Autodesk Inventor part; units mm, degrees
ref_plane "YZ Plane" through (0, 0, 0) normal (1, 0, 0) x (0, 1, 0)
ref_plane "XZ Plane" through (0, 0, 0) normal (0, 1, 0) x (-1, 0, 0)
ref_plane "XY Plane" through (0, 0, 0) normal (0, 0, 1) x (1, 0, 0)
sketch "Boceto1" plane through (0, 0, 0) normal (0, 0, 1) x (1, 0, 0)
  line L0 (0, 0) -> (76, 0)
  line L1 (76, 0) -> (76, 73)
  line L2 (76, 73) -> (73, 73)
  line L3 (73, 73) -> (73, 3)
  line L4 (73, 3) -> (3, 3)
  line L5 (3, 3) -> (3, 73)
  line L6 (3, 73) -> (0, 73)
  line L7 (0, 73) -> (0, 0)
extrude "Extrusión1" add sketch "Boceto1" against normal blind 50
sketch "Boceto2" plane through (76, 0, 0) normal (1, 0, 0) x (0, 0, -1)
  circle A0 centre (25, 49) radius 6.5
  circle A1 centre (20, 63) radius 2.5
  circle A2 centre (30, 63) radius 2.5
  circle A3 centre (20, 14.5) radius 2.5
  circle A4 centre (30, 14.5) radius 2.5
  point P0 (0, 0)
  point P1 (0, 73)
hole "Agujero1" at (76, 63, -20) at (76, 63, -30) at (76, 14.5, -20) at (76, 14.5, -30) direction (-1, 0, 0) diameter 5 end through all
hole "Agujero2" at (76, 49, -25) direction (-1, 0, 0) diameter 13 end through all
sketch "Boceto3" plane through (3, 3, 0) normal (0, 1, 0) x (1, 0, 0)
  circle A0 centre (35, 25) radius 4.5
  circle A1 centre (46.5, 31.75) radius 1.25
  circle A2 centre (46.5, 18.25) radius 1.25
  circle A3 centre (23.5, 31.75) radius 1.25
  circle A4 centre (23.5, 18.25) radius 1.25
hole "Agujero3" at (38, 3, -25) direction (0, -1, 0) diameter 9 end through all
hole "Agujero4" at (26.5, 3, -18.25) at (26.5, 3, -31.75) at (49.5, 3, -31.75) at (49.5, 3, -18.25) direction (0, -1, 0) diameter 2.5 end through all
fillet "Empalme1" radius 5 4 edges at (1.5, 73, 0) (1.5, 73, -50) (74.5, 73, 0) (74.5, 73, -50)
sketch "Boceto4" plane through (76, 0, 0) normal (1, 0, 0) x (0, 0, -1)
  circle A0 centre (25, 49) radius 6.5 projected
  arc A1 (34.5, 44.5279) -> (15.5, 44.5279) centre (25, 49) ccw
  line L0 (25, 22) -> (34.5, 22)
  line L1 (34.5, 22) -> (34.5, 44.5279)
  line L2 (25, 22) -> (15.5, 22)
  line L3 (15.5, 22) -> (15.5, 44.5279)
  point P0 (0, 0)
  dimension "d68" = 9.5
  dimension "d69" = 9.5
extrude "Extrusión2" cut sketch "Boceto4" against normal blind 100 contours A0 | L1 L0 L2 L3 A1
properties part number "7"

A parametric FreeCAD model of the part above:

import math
import FreeCAD as App
import Part
import Sketcher


def edges_at(feature, points):
    """Names of the edges that pass closest to the given points."""
    edges = feature.Shape.Edges
    near = lambda p: min(range(len(edges)), key=lambda i: edges[i].distToShape(Part.Vertex(*p))[0])
    return sorted({f"Edge{near(p) + 1}" for p in points})

doc = App.newDocument("Part")
body = doc.addObject("PartDesign::Body", "Body")

sketch1 = doc.addObject("Sketcher::SketchObject", "Sketch")
body.addObject(sketch1)
sketch1.AttachmentSupport = (doc.XY_Plane, [""])
sketch1.MapMode = "FlatFace"
sketch1.addGeometry([
    Part.LineSegment(App.Vector(0, 73, 0), App.Vector(0, 0, 0)),
    Part.LineSegment(App.Vector(0, 0, 0), App.Vector(76, 0, 0)),
    Part.LineSegment(App.Vector(76, 0, 0), App.Vector(76, 73, 0)),
    Part.LineSegment(App.Vector(76, 73, 0), App.Vector(73, 73, 0)),
    Part.LineSegment(App.Vector(73, 73, 0), App.Vector(73, 3, 0)),
    Part.LineSegment(App.Vector(73, 3, 0), App.Vector(3, 3, 0)),
    Part.LineSegment(App.Vector(3, 3, 0), App.Vector(3, 73, 0)),
    Part.LineSegment(App.Vector(3, 73, 0), App.Vector(0, 73, 0)),
], False)
sketch1.addConstraint([
    Sketcher.Constraint("Coincident", 0, 2, 1, 1),
    Sketcher.Constraint("Coincident", 1, 2, 2, 1),
    Sketcher.Constraint("Coincident", 2, 2, 3, 1),
    Sketcher.Constraint("Coincident", 3, 2, 4, 1),
    Sketcher.Constraint("Coincident", 4, 2, 5, 1),
    Sketcher.Constraint("Coincident", 5, 2, 6, 1),
    Sketcher.Constraint("Coincident", 6, 2, 7, 1),
    Sketcher.Constraint("Coincident", 7, 2, 0, 1),
    Sketcher.Constraint("Vertical", 0),
    Sketcher.Constraint("Horizontal", 1),
    Sketcher.Constraint("Vertical", 2),
    Sketcher.Constraint("Horizontal", 3),
    Sketcher.Constraint("Vertical", 4),
    Sketcher.Constraint("Horizontal", 5),
    Sketcher.Constraint("Vertical", 6),
    Sketcher.Constraint("Horizontal", 7),
    Sketcher.Constraint("Coincident", 0, 2, -1, 1),
    Sketcher.Constraint("Horizontal", 3, 2, 6, 2),
    Sketcher.Constraint("Equal", 3, 7),
    Sketcher.Constraint("Equal", 5, 4),
    Sketcher.Constraint("DistanceX", 1, 1, 1, 2, 76.0),
    Sketcher.Constraint("DistanceX", 3, 2, 3, 1, 3.0),
    Sketcher.Constraint("DistanceY", 0, 2, 0, 1, 73.0),
])
pad1 = doc.addObject("PartDesign::Pad", "Pad")
body.addObject(pad1)
pad1.Profile = sketch1
pad1.Length = 50
pad1.Reversed = True

sketch2 = doc.addObject("Sketcher::SketchObject", "Sketch001")
body.addObject(sketch2)
sketch2.AttachmentSupport = (doc.YZ_Plane, [""])
sketch2.MapMode = "FlatFace"
sketch2.AttachmentOffset = App.Placement(App.Vector(0, 0, 76), App.Rotation())
sketch2.addGeometry([
    Part.Circle(App.Vector(63, -20, 0), App.Vector(0, 0, 1), 2.5),
    Part.Circle(App.Vector(63, -30, 0), App.Vector(0, 0, 1), 2.5),
    Part.Circle(App.Vector(14.5, -20, 0), App.Vector(0, 0, 1), 2.5),
    Part.Circle(App.Vector(14.5, -30, 0), App.Vector(0, 0, 1), 2.5),
], False)
sketch2.addConstraint([
    Sketcher.Constraint("Equal", 0, 1),
    Sketcher.Constraint("Equal", 1, 2),
    Sketcher.Constraint("Equal", 2, 3),
    Sketcher.Constraint("Horizontal", 0, 3, 2, 3),
    Sketcher.Constraint("Horizontal", 1, 3, 3, 3),
    Sketcher.Constraint("Vertical", 0, 3, 1, 3),
    Sketcher.Constraint("Vertical", 2, 3, 3, 3),
    Sketcher.Constraint("Diameter", 0, 5.0),
    Sketcher.Constraint("DistanceX", -1, 1, 0, 3, 63.0),
    Sketcher.Constraint("DistanceY", 0, 3, -1, 1, 20.0),
    Sketcher.Constraint("DistanceY", 1, 3, -1, 1, 30.0),
    Sketcher.Constraint("DistanceX", -1, 1, 2, 3, 14.5),
])
doc.recompute()
hole = doc.addObject("PartDesign::Hole", "Hole")
body.addObject(hole)
hole.Profile = sketch2
hole.ThreadType = "None"
hole.Diameter = 5
hole.DepthType = "ThroughAll"

sketch3 = doc.addObject("Sketcher::SketchObject", "Sketch002")
body.addObject(sketch3)
sketch3.AttachmentSupport = (doc.YZ_Plane, [""])
sketch3.MapMode = "FlatFace"
sketch3.AttachmentOffset = App.Placement(App.Vector(0, 0, 76), App.Rotation())
sketch3.addGeometry(Part.Circle(App.Vector(49, -25, 0), App.Vector(0, 0, 1), 6), False)
sketch3.addConstraint([
    Sketcher.Constraint("Diameter", 0, 13.0),
    Sketcher.Constraint("DistanceX", -1, 1, 0, 3, 49.0),
    Sketcher.Constraint("DistanceY", 0, 3, -1, 1, 25.0),
])
doc.recompute()
hole2 = doc.addObject("PartDesign::Hole", "Hole001")
body.addObject(hole2)
hole2.Profile = sketch3
hole2.ThreadType = "None"
hole2.Diameter = 13
hole2.DepthType = "ThroughAll"

sketch4 = doc.addObject("Sketcher::SketchObject", "Sketch003")
body.addObject(sketch4)
sketch4.AttachmentSupport = (doc.XZ_Plane, [""])
sketch4.MapMode = "FlatFace"
sketch4.AttachmentOffset = App.Placement(App.Vector(0, 0, -3), App.Rotation())
sketch4.addGeometry(Part.Circle(App.Vector(38, -25, 0), App.Vector(0, 0, 1), 4.5), False)
sketch4.addConstraint([
    Sketcher.Constraint("Diameter", 0, 9.0),
    Sketcher.Constraint("DistanceX", -1, 1, 0, 3, 38.0),
    Sketcher.Constraint("DistanceY", 0, 3, -1, 1, 25.0),
])
doc.recompute()
hole3 = doc.addObject("PartDesign::Hole", "Hole002")
body.addObject(hole3)
hole3.Profile = sketch4
hole3.ThreadType = "None"
hole3.Diameter = 9
hole3.DepthType = "ThroughAll"
hole3.Reversed = True

sketch5 = doc.addObject("Sketcher::SketchObject", "Sketch004")
body.addObject(sketch5)
sketch5.AttachmentSupport = (doc.XZ_Plane, [""])
sketch5.MapMode = "FlatFace"
sketch5.AttachmentOffset = App.Placement(App.Vector(0, 0, -3), App.Rotation())
sketch5.addGeometry([
    Part.Circle(App.Vector(26.5, -18.2, 0), App.Vector(0, 0, 1), 1.2),
    Part.Circle(App.Vector(26.5, -31.8, 0), App.Vector(0, 0, 1), 1.2),
    Part.Circle(App.Vector(49.5, -31.8, 0), App.Vector(0, 0, 1), 1.2),
    Part.Circle(App.Vector(49.5, -18.2, 0), App.Vector(0, 0, 1), 1.2),
], False)
sketch5.addConstraint([
    Sketcher.Constraint("Equal", 0, 1),
    Sketcher.Constraint("Equal", 1, 2),
    Sketcher.Constraint("Equal", 2, 3),
    Sketcher.Constraint("Horizontal", 1, 3, 2, 3),
    Sketcher.Constraint("Horizontal", 0, 3, 3, 3),
    Sketcher.Constraint("Vertical", 0, 3, 1, 3),
    Sketcher.Constraint("Vertical", 2, 3, 3, 3),
    Sketcher.Constraint("Diameter", 0, 2.5),
    Sketcher.Constraint("DistanceX", 1, 3, 2, 3, 23.0),
    Sketcher.Constraint("DistanceX", -1, 1, 0, 3, 26.5),
    Sketcher.Constraint("DistanceY", 1, 3, 0, 3, 13.5),
    Sketcher.Constraint("DistanceY", 0, 3, -1, 1, 18.25),
])
doc.recompute()
hole4 = doc.addObject("PartDesign::Hole", "Hole003")
body.addObject(hole4)
hole4.Profile = sketch5
hole4.ThreadType = "None"
hole4.Diameter = 2.5
hole4.DepthType = "ThroughAll"
hole4.Reversed = True
doc.recompute()

fillet = doc.addObject("PartDesign::Fillet", "Fillet")
body.addObject(fillet)
fillet.Base = (hole4, edges_at(hole4, [
    (1.5, 73, 0),
    (1.5, 73, -50),
    (74.5, 73, 0),
    (74.5, 73, -50),
]))
fillet.Radius = 5

sketch6 = doc.addObject("Sketcher::SketchObject", "Sketch005")
body.addObject(sketch6)
sketch6.AttachmentSupport = (doc.YZ_Plane, [""])
sketch6.MapMode = "FlatFace"
sketch6.AttachmentOffset = App.Placement(App.Vector(0, 0, 76), App.Rotation())
sketch6.addGeometry([
    Part.LineSegment(App.Vector(22, -34, 0), App.Vector(45, -34, 0)),
    Part.ArcOfCircle(Part.Circle(App.Vector(49, -25, 0), App.Vector(0, 0, 1), 10), math.radians(-115), math.radians(115)),
    Part.LineSegment(App.Vector(45, -16, 0), App.Vector(22, -16, 0)),
    Part.LineSegment(App.Vector(22, -16, 0), App.Vector(22, -34, 0)),
], False)
sketch6.addConstraint([
    Sketcher.Constraint("Coincident", 0, 2, 1, 1),
    Sketcher.Constraint("Coincident", 1, 2, 2, 1),
    Sketcher.Constraint("Coincident", 2, 2, 3, 1),
    Sketcher.Constraint("Coincident", 3, 2, 0, 1),
    Sketcher.Constraint("Horizontal", 0),
    Sketcher.Constraint("Horizontal", 2),
    Sketcher.Constraint("Vertical", 3),
    Sketcher.Constraint("Vertical", 0, 2, 1, 2),
    Sketcher.Constraint("Radius", 1, 10.5),
    Sketcher.Constraint("DistanceY", 0, 2, 1, 3, 9.5),
    Sketcher.Constraint("DistanceX", -1, 1, 1, 3, 49.0),
    Sketcher.Constraint("DistanceY", 1, 3, -1, 1, 25.0),
    Sketcher.Constraint("DistanceX", -1, 1, 2, 2, 22.0),
])
pocket1 = doc.addObject("PartDesign::Pocket", "Pocket")
body.addObject(pocket1)
pocket1.Profile = sketch6
pocket1.Length = 100

doc.recompute()
